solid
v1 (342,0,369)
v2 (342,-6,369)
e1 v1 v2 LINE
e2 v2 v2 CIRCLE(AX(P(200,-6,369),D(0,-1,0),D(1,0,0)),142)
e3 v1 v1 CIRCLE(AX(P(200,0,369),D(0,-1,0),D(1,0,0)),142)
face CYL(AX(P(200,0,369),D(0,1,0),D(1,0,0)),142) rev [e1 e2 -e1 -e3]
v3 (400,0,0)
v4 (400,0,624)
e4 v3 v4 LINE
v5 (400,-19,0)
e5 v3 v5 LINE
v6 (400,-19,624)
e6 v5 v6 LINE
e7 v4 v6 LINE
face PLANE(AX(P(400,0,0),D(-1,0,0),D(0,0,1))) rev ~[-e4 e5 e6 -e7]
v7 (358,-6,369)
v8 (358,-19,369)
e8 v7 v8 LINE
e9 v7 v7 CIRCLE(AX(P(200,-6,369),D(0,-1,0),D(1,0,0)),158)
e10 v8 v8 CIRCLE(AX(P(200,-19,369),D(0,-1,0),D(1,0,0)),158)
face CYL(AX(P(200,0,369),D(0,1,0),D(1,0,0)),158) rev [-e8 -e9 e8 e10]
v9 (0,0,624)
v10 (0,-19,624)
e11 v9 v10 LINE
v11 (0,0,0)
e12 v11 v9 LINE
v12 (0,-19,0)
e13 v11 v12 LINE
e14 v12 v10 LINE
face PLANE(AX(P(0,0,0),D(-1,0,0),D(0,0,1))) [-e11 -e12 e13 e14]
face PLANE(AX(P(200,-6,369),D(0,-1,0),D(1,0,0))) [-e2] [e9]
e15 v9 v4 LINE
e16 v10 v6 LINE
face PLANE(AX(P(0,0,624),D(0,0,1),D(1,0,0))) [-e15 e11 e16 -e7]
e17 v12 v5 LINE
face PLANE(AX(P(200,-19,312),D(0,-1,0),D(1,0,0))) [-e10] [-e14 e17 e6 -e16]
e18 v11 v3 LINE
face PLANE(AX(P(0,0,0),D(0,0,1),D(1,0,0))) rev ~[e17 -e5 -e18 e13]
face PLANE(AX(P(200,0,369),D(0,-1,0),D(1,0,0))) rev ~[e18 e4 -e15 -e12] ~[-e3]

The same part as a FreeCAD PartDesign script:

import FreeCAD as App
import Part
import Sketcher
from FreeCAD import Vector

doc = App.newDocument("Part")
body = doc.addObject("PartDesign::Body", "Body")

sketch1 = body.newObject("Sketcher::SketchObject", "Sketch")
sketch1.AttachmentSupport = (doc.getObject("XZ_Plane"), [""])
sketch1.MapMode = "FlatFace"
sketch1.addGeometry(Part.LineSegment(Vector(0, 624, 0), Vector(0, 0, 0)), False)
sketch1.addGeometry(Part.LineSegment(Vector(0, 0, 0), Vector(400, 0, 0)), False)
sketch1.addGeometry(Part.LineSegment(Vector(400, 0, 0), Vector(400, 624, 0)), False)
sketch1.addGeometry(Part.LineSegment(Vector(400, 624, 0), Vector(0, 624, 0)), False)
sketch1.addGeometry(Part.Circle(Vector(200, 369, 0), Vector(0, 0, 1), 158), False)
sketch1.addConstraint(Sketcher.Constraint("Coincident", 0, 2, 1, 1))
sketch1.addConstraint(Sketcher.Constraint("Coincident", 1, 2, 2, 1))
sketch1.addConstraint(Sketcher.Constraint("Coincident", 2, 2, 3, 1))
sketch1.addConstraint(Sketcher.Constraint("Coincident", 3, 2, 0, 1))
sketch1.addConstraint(Sketcher.Constraint("Vertical", 0))
sketch1.addConstraint(Sketcher.Constraint("Horizontal", 1))
sketch1.addConstraint(Sketcher.Constraint("Vertical", 2))
sketch1.addConstraint(Sketcher.Constraint("Horizontal", 3))
sketch1.addConstraint(Sketcher.Constraint("Coincident", 0, 2, -1, 1))
sketch1.addConstraint(Sketcher.Constraint("Diameter", 4, 316.0))
sketch1.addConstraint(Sketcher.Constraint("DistanceX", 1, 1, 1, 2, 400.0))
sketch1.addConstraint(Sketcher.Constraint("DistanceY", 0, 2, 0, 1, 624.0))
sketch1.addConstraint(Sketcher.Constraint("DistanceX", -1, 1, 4, 3, 200.0))
sketch1.addConstraint(Sketcher.Constraint("DistanceY", -1, 1, 4, 3, 369.0))
pad1 = body.newObject("PartDesign::Pad", "Pad")
pad1.Profile = sketch1
pad1.Length = 19

sketch2 = body.newObject("Sketcher::SketchObject", "Sketch001")
sketch2.AttachmentSupport = (doc.getObject("XZ_Plane"), [""])
sketch2.MapMode = "FlatFace"
sketch2.addGeometry(Part.Circle(Vector(200, 369, 0), Vector(0, 0, 1), 158), False)
sketch2.addGeometry(Part.Circle(Vector(200, 369, 0), Vector(0, 0, 1), 142), False)
sketch2.addConstraint(Sketcher.Constraint("Coincident", 1, 3, 0, 3))
sketch2.addConstraint(Sketcher.Constraint("Diameter", 0, 316.0))
sketch2.addConstraint(Sketcher.Constraint("Diameter", 1, 284.0))
sketch2.addConstraint(Sketcher.Constraint("DistanceX", -1, 1, 0, 3, 200.0))
sketch2.addConstraint(Sketcher.Constraint("DistanceY", -1, 1, 0, 3, 369.0))
pad2 = body.newObject("PartDesign::Pad", "Pad001")
pad2.Profile = sketch2
pad2.Length = 6

doc.recompute()
